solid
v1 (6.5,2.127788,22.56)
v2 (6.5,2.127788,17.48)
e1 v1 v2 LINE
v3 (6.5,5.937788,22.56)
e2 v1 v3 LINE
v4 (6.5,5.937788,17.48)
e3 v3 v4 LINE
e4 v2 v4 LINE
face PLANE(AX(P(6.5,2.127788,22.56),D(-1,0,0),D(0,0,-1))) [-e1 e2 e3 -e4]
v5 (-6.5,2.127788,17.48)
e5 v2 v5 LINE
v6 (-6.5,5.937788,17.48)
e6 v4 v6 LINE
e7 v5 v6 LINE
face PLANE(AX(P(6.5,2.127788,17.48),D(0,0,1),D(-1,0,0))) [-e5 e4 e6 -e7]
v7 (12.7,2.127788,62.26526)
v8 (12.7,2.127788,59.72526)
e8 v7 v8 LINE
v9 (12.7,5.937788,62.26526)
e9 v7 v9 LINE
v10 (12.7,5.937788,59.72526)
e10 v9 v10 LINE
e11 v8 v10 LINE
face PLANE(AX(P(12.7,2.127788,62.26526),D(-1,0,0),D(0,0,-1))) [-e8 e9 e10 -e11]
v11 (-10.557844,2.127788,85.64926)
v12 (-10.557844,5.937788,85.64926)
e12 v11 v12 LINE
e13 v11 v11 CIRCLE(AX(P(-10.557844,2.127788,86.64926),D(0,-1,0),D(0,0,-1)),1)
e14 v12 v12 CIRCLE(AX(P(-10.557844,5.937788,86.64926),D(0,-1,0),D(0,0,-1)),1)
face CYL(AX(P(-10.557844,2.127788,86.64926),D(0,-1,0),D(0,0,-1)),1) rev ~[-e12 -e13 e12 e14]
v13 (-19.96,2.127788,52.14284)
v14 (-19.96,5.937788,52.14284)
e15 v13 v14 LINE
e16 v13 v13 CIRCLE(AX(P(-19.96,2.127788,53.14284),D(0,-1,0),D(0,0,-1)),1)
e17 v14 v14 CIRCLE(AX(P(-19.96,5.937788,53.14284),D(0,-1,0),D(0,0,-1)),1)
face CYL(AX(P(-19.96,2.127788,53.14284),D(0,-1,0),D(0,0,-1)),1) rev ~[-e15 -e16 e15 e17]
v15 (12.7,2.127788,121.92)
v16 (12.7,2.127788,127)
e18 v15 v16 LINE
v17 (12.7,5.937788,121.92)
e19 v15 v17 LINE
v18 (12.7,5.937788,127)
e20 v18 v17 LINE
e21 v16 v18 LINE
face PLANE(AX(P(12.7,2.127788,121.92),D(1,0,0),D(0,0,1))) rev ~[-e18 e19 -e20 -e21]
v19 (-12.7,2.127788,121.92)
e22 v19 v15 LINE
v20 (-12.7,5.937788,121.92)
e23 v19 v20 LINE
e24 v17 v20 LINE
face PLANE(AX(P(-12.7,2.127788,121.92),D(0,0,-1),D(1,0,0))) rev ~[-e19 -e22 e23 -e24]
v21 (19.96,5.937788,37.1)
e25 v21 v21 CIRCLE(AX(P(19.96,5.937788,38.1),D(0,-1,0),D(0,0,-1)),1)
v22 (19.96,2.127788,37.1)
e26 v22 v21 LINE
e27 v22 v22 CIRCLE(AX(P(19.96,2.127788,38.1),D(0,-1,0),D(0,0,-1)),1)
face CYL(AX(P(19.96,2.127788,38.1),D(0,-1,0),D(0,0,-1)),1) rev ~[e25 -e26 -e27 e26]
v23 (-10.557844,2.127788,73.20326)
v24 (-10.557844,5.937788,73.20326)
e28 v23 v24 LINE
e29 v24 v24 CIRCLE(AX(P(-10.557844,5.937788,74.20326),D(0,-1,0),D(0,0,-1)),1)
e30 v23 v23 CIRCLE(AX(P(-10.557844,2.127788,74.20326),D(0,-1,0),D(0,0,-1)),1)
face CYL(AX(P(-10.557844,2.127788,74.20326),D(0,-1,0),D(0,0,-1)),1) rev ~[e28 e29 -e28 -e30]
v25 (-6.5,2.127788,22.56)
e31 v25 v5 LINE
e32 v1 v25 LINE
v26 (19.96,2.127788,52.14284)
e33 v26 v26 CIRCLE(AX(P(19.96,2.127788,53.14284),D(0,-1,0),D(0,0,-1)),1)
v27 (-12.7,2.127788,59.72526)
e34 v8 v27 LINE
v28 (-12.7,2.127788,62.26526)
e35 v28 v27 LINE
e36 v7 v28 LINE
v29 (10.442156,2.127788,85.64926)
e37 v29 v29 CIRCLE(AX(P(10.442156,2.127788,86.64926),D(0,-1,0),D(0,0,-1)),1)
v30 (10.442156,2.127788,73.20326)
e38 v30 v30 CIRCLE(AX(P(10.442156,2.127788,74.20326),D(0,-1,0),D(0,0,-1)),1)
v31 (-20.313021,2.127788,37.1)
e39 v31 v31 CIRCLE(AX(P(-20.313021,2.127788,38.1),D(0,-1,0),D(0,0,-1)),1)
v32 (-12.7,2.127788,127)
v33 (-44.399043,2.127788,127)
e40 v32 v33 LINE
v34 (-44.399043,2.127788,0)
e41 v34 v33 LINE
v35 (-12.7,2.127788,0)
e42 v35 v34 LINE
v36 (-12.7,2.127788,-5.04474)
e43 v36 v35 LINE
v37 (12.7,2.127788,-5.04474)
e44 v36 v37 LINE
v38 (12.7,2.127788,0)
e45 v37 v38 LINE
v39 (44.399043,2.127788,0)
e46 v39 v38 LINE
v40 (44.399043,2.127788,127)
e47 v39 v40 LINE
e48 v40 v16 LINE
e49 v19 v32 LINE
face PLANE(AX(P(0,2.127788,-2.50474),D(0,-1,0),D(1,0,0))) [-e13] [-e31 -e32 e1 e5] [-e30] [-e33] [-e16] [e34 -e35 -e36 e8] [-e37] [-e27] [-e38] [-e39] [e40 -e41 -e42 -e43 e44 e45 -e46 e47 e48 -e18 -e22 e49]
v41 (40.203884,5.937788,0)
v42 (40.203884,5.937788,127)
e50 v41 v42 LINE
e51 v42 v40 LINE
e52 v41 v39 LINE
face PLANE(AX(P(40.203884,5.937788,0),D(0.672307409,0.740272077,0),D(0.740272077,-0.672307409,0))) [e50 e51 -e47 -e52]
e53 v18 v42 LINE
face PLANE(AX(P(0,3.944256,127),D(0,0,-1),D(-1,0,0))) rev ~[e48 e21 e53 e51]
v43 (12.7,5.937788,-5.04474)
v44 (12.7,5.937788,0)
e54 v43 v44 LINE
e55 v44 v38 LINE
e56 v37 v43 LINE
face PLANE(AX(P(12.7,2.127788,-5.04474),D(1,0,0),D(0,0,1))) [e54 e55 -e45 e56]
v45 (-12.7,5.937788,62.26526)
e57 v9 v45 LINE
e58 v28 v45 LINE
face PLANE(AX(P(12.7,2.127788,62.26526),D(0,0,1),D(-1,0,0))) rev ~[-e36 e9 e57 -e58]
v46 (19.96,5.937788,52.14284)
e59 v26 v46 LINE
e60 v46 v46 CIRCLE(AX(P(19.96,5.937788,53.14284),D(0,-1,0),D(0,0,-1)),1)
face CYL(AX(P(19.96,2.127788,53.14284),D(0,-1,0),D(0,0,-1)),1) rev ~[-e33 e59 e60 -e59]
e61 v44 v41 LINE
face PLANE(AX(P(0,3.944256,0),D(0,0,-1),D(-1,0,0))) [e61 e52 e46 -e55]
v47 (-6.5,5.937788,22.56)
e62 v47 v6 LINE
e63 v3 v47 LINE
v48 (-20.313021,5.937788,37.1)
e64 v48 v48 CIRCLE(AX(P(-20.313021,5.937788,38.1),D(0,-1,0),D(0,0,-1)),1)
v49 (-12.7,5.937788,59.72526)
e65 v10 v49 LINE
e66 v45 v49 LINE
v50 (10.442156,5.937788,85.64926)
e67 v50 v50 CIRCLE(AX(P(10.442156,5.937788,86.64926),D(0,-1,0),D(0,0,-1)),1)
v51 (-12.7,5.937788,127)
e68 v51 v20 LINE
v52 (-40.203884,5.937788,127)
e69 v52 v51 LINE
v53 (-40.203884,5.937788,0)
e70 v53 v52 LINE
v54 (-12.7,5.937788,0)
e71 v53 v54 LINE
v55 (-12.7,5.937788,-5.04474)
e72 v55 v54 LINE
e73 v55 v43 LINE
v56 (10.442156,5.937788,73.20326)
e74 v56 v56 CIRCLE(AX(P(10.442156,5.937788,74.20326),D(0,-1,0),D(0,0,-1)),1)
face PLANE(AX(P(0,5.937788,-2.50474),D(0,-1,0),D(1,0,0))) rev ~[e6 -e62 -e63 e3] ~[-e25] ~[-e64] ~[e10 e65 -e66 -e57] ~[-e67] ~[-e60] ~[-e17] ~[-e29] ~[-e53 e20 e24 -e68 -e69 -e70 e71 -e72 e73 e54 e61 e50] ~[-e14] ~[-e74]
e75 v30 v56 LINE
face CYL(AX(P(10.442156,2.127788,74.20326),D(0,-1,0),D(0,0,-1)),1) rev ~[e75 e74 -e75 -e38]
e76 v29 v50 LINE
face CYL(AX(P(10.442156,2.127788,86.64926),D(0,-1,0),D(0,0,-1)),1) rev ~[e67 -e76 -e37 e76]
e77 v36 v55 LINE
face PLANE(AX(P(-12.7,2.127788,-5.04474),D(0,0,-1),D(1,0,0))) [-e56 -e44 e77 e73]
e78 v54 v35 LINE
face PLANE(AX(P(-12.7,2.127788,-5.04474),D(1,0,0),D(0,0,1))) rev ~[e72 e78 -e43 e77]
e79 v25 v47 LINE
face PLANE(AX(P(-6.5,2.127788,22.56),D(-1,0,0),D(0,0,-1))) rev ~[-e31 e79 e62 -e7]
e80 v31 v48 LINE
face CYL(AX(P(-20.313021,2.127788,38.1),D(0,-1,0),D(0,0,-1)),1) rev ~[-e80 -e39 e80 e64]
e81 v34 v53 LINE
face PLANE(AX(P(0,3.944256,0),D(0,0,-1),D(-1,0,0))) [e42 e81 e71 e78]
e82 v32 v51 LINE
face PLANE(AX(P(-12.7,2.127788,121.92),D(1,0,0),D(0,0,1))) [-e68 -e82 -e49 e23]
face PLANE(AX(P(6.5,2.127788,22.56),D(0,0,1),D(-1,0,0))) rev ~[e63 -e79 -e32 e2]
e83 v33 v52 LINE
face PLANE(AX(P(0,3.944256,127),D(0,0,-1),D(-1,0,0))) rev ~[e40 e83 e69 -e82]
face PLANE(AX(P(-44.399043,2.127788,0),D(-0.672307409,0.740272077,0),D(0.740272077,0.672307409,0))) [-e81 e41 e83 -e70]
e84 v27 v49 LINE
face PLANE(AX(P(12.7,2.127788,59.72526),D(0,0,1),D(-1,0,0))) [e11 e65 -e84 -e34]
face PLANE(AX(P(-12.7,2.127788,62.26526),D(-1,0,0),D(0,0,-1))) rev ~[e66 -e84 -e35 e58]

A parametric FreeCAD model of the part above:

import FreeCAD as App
import Part
import Sketcher
from FreeCAD import Vector
Q = App.Units.Quantity

doc = App.newDocument("Part")
body = doc.addObject("PartDesign::Body", "Body")

# Sketch on XY plane
sketch1 = body.newObject("Sketcher::SketchObject", "Sketch")
sketch1.AttachmentSupport = (doc.getObject("XY_Plane"), [""])
sketch1.MapMode = "FlatFace"
sketch1.addGeometry([
    Part.LineSegment(Vector(40, 6, 0), Vector(-40, 6, 0)),
    Part.LineSegment(Vector(-40, 6, 0), Vector(-44, 2, 0)),
    Part.LineSegment(Vector(-44, 2, 0), Vector(44, 2, 0)),
    Part.LineSegment(Vector(44, 2, 0), Vector(40, 6, 0)),
], False)
sketch1.addConstraint([
    Sketcher.Constraint("Coincident", 0, 2, 1, 1),
    Sketcher.Constraint("Coincident", 1, 2, 2, 1),
    Sketcher.Constraint("Coincident", 2, 2, 3, 1),
    Sketcher.Constraint("Coincident", 3, 2, 0, 1),
    Sketcher.Constraint("Horizontal", 0),
    Sketcher.Constraint("Horizontal", 2),
    Sketcher.Constraint("Equal", 1, 3),
    Sketcher.Constraint("DistanceY", 1, 2, 0, 2, Q("0.15 in")),
    Sketcher.Constraint("Distance", 1, Q("5.66705 mm")),
    Sketcher.Constraint("DistanceX", 0, 2, 0, 1, Q("80.407768 mm")),
    Sketcher.Constraint("DistanceY", -1, 1, 0, 2, Q("5.937788 mm")),
    Sketcher.Constraint("DistanceX", 0, 2, -1, 1, Q("40.203884 mm")),
])
pad1 = body.newObject("PartDesign::Pad", "Pad")
pad1.Profile = sketch1
pad1.Length = Q("5 in")

# Sketch on XZ plane
sketch2 = body.newObject("Sketcher::SketchObject", "Sketch001")
sketch2.AttachmentSupport = (doc.getObject("XZ_Plane"), [""])
sketch2.MapMode = "FlatFace"
sketch2.AttachmentOffset = App.Placement(Vector(0, 0, -2.127788), App.Rotation())
sketch2.addGeometry([
    Part.LineSegment(Vector(-13, 127, 0), Vector(-13, 122, 0)),
    Part.LineSegment(Vector(-13, 122, 0), Vector(13, 122, 0)),
    Part.LineSegment(Vector(13, 122, 0), Vector(13, 127, 0)),
    Part.LineSegment(Vector(13, 127, 0), Vector(-13, 127, 0)),
], False)
sketch2.addConstraint([
    Sketcher.Constraint("Coincident", 0, 2, 1, 1),
    Sketcher.Constraint("Coincident", 1, 2, 2, 1),
    Sketcher.Constraint("Coincident", 2, 2, 3, 1),
    Sketcher.Constraint("Coincident", 3, 2, 0, 1),
    Sketcher.Constraint("Vertical", 0),
    Sketcher.Constraint("Horizontal", 1),
    Sketcher.Constraint("Vertical", 2),
    Sketcher.Constraint("Horizontal", 3),
    Sketcher.Constraint("DistanceX", 1, 1, 1, 2, Q("1 in")),
    Sketcher.Constraint("DistanceY", 0, 2, 0, 1, Q("0.2 in")),
    Sketcher.Constraint("DistanceY", -1, 1, 2, 2, Q("5 in")),
    Sketcher.Constraint("DistanceX", 0, 2, -1, 1, Q("0.5 in")),
])
pocket1 = body.newObject("PartDesign::Pocket", "Pocket")
pocket1.Profile = sketch2
pocket1.Type = "ThroughAll"

# Sketch on XZ plane
sketch3 = body.newObject("Sketcher::SketchObject", "Sketch002")
sketch3.AttachmentSupport = (doc.getObject("XZ_Plane"), [""])
sketch3.MapMode = "FlatFace"
sketch3.AttachmentOffset = App.Placement(Vector(0, 0, -2.127788), App.Rotation())
sketch3.addGeometry([
    Part.LineSegment(Vector(-13, 0, 0), Vector(-13, -5, 0)),
    Part.LineSegment(Vector(-13, -5, 0), Vector(13, -5, 0)),
    Part.LineSegment(Vector(13, -5, 0), Vector(13, 0, 0)),
    Part.LineSegment(Vector(13, 0, 0), Vector(-13, 0, 0)),
], False)
sketch3.addConstraint([
    Sketcher.Constraint("Coincident", 0, 2, 1, 1),
    Sketcher.Constraint("Coincident", 1, 2, 2, 1),
    Sketcher.Constraint("Coincident", 2, 2, 3, 1),
    Sketcher.Constraint("Coincident", 3, 2, 0, 1),
    Sketcher.Constraint("Vertical", 0),
    Sketcher.Constraint("Horizontal", 1),
    Sketcher.Constraint("Vertical", 2),
    Sketcher.Constraint("Horizontal", 3),
    Sketcher.Constraint("DistanceX", 1, 1, 1, 2, Q("1 in")),
    Sketcher.Constraint("DistanceY", 0, 2, 0, 1, Q("0.2 in")),
    Sketcher.Constraint("DistanceX", 0, 2, -1, 1, Q("0.5 in")),
    Sketcher.Constraint("DistanceY", 0, 2, -1, 1, Q("5.04474 mm")),
])
pad2 = body.newObject("PartDesign::Pad", "Pad001")
pad2.Profile = sketch3
pad2.Length = Q("0.15 in")
pad2.Reversed = True

# Sketch on XZ plane
sketch4 = body.newObject("Sketcher::SketchObject", "Sketch003")
sketch4.AttachmentSupport = (doc.getObject("XZ_Plane"), [""])
sketch4.MapMode = "FlatFace"
sketch4.AttachmentOffset = App.Placement(Vector(0, 0, -2.127788), App.Rotation())
sketch4.addGeometry([
    Part.Circle(Vector(20, 38.1, 0), Vector(0, 0, 1), 1),  # 0
    Part.Circle(Vector(-20.3, 38.1, 0), Vector(0, 0, 1), 1),  # 1
    Part.Circle(Vector(-20, 53.1, 0), Vector(0, 0, 1), 1),  # 2
    Part.Circle(Vector(20, 53.1, 0), Vector(0, 0, 1), 1),  # 3
    Part.Circle(Vector(10.4, 74.2, 0), Vector(0, 0, 1), 1),  # 4
    Part.Circle(Vector(10.4, 86.6, 0), Vector(0, 0, 1), 1),  # 5
    Part.Circle(Vector(-10.6, 74.2, 0), Vector(0, 0, 1), 1),  # 6
    Part.Circle(Vector(-10.6, 86.6, 0), Vector(0, 0, 1), 1),  # 7
    Part.Circle(Vector(93.9, 72.6, 0), Vector(0, 0, 1), 1),  # 8
    Part.Circle(Vector(93.9, 85.1, 0), Vector(0, 0, 1), 1),  # 9
    Part.Circle(Vector(72.9, 72.6, 0), Vector(0, 0, 1), 1),  # 10
    Part.Circle(Vector(72.9, 85.1, 0), Vector(0, 0, 1), 1),  # 11
    Part.Circle(Vector(93.9, -5.6, 0), Vector(0, 0, 1), 1),  # 12
    Part.Circle(Vector(53.2, -5.6, 0), Vector(0, 0, 1), 1),  # 13
    Part.Circle(Vector(53.2, 9.4, 0), Vector(0, 0, 1), 1),  # 14
    Part.Circle(Vector(93.9, 9.4, 0), Vector(0, 0, 1), 1),  # 15
    Part.LineSegment(Vector(6.5, 17.5, 0), Vector(6.5, 22.6, 0)),  # 16
    Part.LineSegment(Vector(6.5, 22.6, 0), Vector(-6.5, 22.6, 0)),  # 17
    Part.LineSegment(Vector(-6.5, 22.6, 0), Vector(-6.5, 17.5, 0)),  # 18
    Part.LineSegment(Vector(-6.5, 17.5, 0), Vector(6.5, 17.5, 0)),  # 19
    Part.LineSegment(Vector(12.7, 59.7, 0), Vector(12.7, 62.3, 0)),  # 20
    Part.LineSegment(Vector(12.7, 62.3, 0), Vector(-12.7, 62.3, 0)),  # 21
    Part.LineSegment(Vector(-12.7, 62.3, 0), Vector(-12.7, 59.7, 0)),  # 22
    Part.LineSegment(Vector(-12.7, 59.7, 0), Vector(12.7, 59.7, 0)),  # 23
], False)
sketch4.addConstraint([
    Sketcher.Constraint("Coincident", 16, 2, 17, 1),
    Sketcher.Constraint("Coincident", 17, 2, 18, 1),
    Sketcher.Constraint("Coincident", 18, 2, 19, 1),
    Sketcher.Constraint("Coincident", 19, 2, 16, 1),
    Sketcher.Constraint("Coincident", 20, 2, 21, 1),
    Sketcher.Constraint("Coincident", 21, 2, 22, 1),
    Sketcher.Constraint("Coincident", 22, 2, 23, 1),
    Sketcher.Constraint("Coincident", 23, 2, 20, 1),
    Sketcher.Constraint("Vertical", 16),
    Sketcher.Constraint("Horizontal", 17),
    Sketcher.Constraint("Vertical", 18),
    Sketcher.Constraint("Horizontal", 19),
    Sketcher.Constraint("Vertical", 20),
    Sketcher.Constraint("Horizontal", 21),
    Sketcher.Constraint("Vertical", 22),
    Sketcher.Constraint("Horizontal", 23),
    Sketcher.Constraint("Equal", 0, 1),
    Sketcher.Constraint("Equal", 1, 2),
    Sketcher.Constraint("Equal", 2, 3),
    Sketcher.Constraint("Equal", 3, 4),
    Sketcher.Constraint("Equal", 4, 5),
    Sketcher.Constraint("Equal", 5, 6),
    Sketcher.Constraint("Equal", 6, 7),
    Sketcher.Constraint("Equal", 7, 8),
    Sketcher.Constraint("Equal", 8, 9),
    Sketcher.Constraint("Equal", 9, 10),
    Sketcher.Constraint("Equal", 10, 11),
    Sketcher.Constraint("Equal", 11, 12),
    Sketcher.Constraint("Equal", 12, 13),
    Sketcher.Constraint("Equal", 13, 14),
    Sketcher.Constraint("Equal", 14, 15),
    Sketcher.Constraint("Symmetric", 2, 3, 3, 3, -2),
    Sketcher.Constraint("Horizontal", 0, 3, 1, 3),
    Sketcher.Constraint("Horizontal", 4, 3, 6, 3),
    Sketcher.Constraint("Horizontal", 5, 3, 7, 3),
    Sketcher.Constraint("Horizontal", 8, 3, 10, 3),
    Sketcher.Constraint("Horizontal", 9, 3, 11, 3),
    Sketcher.Constraint("Horizontal", 12, 3, 13, 3),
    Sketcher.Constraint("Horizontal", 14, 3, 15, 3),
    Sketcher.Constraint("Vertical", 0, 3, 3, 3),
    Sketcher.Constraint("Vertical", 4, 3, 5, 3),
    Sketcher.Constraint("Vertical", 6, 3, 7, 3),
    Sketcher.Constraint("Vertical", 8, 3, 9, 3),
    Sketcher.Constraint("Vertical", 10, 3, 11, 3),
    Sketcher.Constraint("Vertical", 13, 3, 14, 3),
    Sketcher.Constraint("Vertical", 12, 3, 15, 3),
    Sketcher.Constraint("DistanceX", 21, 2, 21, 1, Q("1 in")),
    Sketcher.Constraint("DistanceY", 16, 1, 16, 2, Q("0.2 in")),
    Sketcher.Constraint("DistanceY", 20, 1, 20, 2, Q("0.1 in")),
    Sketcher.Constraint("DistanceY", -1, 1, 0, 3, Q("1.5 in")),
    Sketcher.Constraint("DistanceX", -1, 1, 20, 2, Q("0.5 in")),
    Sketcher.Constraint("Diameter", 0, Q("2 mm")),
    Sketcher.Constraint("DistanceY", 4, 3, 5, 3, Q("0.49 in")),
    Sketcher.Constraint("DistanceY", 20, 2, 4, 3, Q("0.47 in")),
    Sketcher.Constraint("DistanceX", 17, 2, 17, 1, Q("13 mm")),
    Sketcher.Constraint("DistanceX", -1, 1, 0, 3, Q("19.96 mm")),
    Sketcher.Constraint("DistanceX", -1, 1, 16, 2, Q("6.5 mm")),
    Sketcher.Constraint("DistanceY", -1, 1, 16, 2, Q("22.56 mm")),
    Sketcher.Constraint("DistanceX", 6, 3, 4, 3, Q("21 mm")),
    Sketcher.Constraint("DistanceY", 8, 3, 9, 3, Q("12.5 mm")),
    Sketcher.Constraint("DistanceX", 10, 3, 8, 3, Q("21 mm")),
    Sketcher.Constraint("DistanceX", 13, 3, 12, 3, Q("40.72 mm")),
    Sketcher.Constraint("DistanceY", 13, 3, 14, 3, Q("15 mm")),
    Sketcher.Constraint("DistanceX", 1, 3, -1, 1, Q("20.313021 mm")),
    Sketcher.Constraint("DistanceY", -1, 1, 2, 3, Q("53.14284 mm")),
    Sketcher.Constraint("DistanceY", -1, 1, 4, 3, Q("74.20326 mm")),
    Sketcher.Constraint("DistanceX", -1, 1, 8, 3, Q("93.931059 mm")),
    Sketcher.Constraint("DistanceY", -1, 1, 8, 3, Q("72.64975 mm")),
    Sketcher.Constraint("DistanceX", -1, 1, 4, 3, Q("10.442156 mm")),
    Sketcher.Constraint("DistanceX", -1, 1, 12, 3, Q("93.904837 mm")),
    Sketcher.Constraint("DistanceY", 12, 3, -1, 1, Q("5.641457 mm")),
])
pocket2 = body.newObject("PartDesign::Pocket", "Pocket001")
pocket2.Profile = sketch4
pocket2.Type = "ThroughAll"

doc.recompute()
